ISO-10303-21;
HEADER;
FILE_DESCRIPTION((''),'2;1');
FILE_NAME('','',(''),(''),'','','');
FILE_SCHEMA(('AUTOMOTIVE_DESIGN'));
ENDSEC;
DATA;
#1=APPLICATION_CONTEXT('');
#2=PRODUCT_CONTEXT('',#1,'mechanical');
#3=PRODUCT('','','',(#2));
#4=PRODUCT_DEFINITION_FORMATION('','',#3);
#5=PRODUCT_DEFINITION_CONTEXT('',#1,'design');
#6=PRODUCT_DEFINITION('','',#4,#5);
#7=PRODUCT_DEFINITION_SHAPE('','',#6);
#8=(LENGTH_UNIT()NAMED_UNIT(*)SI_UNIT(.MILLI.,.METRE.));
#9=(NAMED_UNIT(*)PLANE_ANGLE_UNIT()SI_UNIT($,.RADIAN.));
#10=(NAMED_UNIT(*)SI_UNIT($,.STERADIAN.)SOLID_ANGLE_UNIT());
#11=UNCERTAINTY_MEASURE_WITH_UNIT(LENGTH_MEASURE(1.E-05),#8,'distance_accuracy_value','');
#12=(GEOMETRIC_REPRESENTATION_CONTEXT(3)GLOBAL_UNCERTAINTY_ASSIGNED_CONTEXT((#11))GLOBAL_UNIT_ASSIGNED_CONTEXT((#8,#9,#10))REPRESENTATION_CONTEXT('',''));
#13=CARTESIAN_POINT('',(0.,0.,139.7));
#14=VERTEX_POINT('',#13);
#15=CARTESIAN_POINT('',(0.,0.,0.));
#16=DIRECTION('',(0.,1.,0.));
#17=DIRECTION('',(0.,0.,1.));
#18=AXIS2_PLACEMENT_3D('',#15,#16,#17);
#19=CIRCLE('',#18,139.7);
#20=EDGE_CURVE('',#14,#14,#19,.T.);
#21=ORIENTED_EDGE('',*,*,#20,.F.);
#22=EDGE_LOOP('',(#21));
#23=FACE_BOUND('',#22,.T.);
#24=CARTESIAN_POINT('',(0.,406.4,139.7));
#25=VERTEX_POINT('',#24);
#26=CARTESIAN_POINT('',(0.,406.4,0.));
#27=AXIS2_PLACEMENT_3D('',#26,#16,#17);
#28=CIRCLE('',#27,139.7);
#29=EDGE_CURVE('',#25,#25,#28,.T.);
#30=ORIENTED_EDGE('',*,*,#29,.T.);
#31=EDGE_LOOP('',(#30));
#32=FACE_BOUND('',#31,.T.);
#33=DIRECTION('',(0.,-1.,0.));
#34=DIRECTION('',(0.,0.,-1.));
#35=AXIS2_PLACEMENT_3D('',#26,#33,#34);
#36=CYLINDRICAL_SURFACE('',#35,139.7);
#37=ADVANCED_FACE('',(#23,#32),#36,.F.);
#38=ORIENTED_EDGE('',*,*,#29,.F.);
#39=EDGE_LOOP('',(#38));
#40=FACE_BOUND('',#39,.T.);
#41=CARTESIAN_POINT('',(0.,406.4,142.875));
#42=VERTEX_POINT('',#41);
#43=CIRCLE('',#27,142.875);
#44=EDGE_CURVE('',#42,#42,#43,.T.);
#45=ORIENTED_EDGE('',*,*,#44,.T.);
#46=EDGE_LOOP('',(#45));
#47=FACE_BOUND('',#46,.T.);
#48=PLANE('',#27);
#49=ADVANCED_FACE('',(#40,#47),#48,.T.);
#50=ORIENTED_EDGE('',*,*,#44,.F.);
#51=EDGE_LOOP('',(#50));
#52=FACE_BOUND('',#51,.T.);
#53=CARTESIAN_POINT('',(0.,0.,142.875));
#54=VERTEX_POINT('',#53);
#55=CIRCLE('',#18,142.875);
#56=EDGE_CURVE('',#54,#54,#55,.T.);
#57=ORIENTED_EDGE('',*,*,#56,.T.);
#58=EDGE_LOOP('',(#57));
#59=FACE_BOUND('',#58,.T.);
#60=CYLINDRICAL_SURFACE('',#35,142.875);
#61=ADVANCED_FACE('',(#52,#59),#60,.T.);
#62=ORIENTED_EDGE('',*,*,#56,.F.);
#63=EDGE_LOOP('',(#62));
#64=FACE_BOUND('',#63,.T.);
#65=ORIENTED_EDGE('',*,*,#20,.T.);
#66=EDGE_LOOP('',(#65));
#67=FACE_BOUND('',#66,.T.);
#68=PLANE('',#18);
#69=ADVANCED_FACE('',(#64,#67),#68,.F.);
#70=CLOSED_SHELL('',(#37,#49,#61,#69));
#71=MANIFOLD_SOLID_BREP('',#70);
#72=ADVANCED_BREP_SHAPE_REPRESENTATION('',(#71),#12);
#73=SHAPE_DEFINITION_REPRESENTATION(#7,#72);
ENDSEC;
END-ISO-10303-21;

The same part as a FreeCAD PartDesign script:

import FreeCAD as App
import Part
import Sketcher

V = App.Vector
Q = App.Units.Quantity

doc = App.newDocument("Part")
body = doc.addObject("PartDesign::Body", "Body")

sketch1 = body.newObject("Sketcher::SketchObject", "Sketch")
sketch1.AttachmentSupport = (doc.getObject("XZ_Plane"), [""])
sketch1.MapMode = "FlatFace"
sketch1.addGeometry([
    Part.Circle(V(0, 0, 0), V(0, 0, 1), 142.875),
    Part.Circle(V(0, 0, 0), V(0, 0, 1), 139.7),
], False)
sketch1.addConstraint([
    Sketcher.Constraint("Coincident", 0, 3, -1, 1),
    Sketcher.Constraint("Coincident", 1, 3, -1, 1),
    Sketcher.Constraint("Diameter", 1, Q("11 in")),
    Sketcher.Constraint("Diameter", 0, Q("11.25 in")),
])
pad1 = body.newObject("PartDesign::Pad", "Pad")
pad1.Profile = sketch1
pad1.Length = Q("16 in")
pad1.Reversed = True

doc.recompute()
